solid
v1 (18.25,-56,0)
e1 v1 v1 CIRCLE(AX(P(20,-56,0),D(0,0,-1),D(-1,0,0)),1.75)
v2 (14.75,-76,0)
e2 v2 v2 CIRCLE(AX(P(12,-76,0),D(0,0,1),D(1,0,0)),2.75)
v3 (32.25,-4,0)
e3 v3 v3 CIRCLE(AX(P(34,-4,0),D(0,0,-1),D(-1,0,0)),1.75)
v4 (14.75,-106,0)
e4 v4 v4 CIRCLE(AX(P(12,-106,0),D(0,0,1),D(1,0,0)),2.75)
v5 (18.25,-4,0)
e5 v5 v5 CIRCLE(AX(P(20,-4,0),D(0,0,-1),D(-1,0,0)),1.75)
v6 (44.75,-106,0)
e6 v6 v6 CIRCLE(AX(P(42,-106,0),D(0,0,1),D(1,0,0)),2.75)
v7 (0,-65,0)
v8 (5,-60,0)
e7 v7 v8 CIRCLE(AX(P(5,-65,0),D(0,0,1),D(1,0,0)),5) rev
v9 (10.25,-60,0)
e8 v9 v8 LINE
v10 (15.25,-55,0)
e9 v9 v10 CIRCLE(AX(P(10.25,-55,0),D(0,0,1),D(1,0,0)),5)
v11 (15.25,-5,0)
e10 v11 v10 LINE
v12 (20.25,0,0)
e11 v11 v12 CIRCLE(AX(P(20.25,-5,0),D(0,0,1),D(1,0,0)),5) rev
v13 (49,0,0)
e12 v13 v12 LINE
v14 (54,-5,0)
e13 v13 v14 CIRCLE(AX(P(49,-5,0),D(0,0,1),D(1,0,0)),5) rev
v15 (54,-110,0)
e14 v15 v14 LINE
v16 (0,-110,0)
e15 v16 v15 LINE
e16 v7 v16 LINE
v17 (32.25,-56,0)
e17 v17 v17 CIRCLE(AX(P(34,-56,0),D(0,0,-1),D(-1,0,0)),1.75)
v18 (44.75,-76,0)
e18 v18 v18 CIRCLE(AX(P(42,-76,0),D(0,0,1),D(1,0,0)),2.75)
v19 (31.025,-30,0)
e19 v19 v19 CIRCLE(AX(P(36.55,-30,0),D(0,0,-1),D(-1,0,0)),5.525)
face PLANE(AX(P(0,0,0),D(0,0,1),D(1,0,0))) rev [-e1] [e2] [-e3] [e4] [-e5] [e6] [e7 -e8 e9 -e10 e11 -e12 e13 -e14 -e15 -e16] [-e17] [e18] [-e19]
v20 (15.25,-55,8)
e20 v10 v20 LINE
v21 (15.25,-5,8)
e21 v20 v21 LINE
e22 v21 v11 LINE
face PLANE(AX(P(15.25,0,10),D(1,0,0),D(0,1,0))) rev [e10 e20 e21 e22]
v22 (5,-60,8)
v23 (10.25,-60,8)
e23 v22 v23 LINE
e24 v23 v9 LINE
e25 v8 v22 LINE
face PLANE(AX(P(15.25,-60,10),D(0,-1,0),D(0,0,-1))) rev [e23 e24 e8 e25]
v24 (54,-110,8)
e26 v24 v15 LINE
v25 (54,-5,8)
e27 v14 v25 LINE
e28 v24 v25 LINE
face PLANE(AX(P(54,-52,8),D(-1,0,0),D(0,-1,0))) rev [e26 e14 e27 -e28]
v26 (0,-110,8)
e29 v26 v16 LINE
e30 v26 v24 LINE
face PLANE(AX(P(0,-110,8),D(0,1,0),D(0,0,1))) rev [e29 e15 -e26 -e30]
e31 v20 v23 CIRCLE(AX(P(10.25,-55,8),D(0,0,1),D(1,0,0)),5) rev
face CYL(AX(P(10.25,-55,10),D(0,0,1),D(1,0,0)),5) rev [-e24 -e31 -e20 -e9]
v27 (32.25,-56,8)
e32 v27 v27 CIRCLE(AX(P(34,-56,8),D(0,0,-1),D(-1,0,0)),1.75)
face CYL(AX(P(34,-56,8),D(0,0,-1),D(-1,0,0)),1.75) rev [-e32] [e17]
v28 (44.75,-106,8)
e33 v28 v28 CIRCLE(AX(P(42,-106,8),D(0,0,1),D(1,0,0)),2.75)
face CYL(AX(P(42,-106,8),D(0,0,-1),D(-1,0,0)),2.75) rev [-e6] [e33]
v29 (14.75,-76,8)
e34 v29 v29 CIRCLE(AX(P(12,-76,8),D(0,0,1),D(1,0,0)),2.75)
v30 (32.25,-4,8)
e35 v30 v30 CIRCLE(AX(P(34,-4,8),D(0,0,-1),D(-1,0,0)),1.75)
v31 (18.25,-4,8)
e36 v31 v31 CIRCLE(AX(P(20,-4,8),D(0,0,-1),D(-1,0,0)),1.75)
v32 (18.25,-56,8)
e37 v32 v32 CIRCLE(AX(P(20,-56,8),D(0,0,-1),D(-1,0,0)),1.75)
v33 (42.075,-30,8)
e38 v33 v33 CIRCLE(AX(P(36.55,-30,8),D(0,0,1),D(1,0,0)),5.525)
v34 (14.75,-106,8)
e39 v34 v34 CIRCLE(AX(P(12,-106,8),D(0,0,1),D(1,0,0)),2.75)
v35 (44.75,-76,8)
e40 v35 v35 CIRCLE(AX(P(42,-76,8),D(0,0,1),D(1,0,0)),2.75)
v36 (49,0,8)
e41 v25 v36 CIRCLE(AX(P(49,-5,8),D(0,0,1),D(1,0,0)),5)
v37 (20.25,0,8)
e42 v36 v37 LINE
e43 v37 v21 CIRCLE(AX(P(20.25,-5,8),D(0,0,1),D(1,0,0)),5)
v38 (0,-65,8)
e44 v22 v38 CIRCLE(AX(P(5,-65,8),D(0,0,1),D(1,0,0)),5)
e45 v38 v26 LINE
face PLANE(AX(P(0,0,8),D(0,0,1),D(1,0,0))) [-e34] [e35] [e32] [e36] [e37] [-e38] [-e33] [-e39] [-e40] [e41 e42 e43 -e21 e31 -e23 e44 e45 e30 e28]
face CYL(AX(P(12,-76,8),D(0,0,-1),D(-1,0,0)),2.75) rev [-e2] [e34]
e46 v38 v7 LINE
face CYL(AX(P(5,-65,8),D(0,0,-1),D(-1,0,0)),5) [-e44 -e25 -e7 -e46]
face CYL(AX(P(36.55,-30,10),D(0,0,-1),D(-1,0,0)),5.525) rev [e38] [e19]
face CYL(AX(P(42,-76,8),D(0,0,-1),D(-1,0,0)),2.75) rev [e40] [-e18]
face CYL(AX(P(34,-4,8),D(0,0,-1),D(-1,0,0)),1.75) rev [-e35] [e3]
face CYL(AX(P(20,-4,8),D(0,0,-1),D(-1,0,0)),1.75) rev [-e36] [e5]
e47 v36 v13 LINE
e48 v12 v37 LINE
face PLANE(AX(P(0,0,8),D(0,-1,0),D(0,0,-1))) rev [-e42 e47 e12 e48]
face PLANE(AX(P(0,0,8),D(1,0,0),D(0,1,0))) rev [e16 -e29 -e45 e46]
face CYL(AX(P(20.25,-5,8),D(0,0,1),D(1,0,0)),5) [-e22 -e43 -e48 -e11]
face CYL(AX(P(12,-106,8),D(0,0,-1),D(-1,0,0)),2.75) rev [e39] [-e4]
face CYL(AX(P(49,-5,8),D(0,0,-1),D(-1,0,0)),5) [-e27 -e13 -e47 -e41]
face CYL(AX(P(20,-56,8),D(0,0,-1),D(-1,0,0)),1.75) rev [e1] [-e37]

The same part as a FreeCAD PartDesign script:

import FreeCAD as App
import Part
import Sketcher
Q = App.Units.Quantity


def edges_at(feature, points):
    """Names of the edges that pass closest to the given points."""
    edges = feature.Shape.Edges
    near = lambda p: min(range(len(edges)), key=lambda i: edges[i].distToShape(Part.Vertex(*p))[0])
    return sorted({f"Edge{near(p) + 1}" for p in points})


def add_polygon(sketch, points):
    """Adds a closed chain of lines whose ends are joined by coincident constraints."""
    first, n = sketch.GeometryCount, len(points)
    for a, b in zip(points, points[1:] + points[:1]):
        sketch.addGeometry(Part.LineSegment(App.Vector(*a, 0), App.Vector(*b, 0)), False)
    for i in range(n):
        sketch.addConstraint(Sketcher.Constraint("Coincident", first + i, 2, first + (i + 1) % n, 1))

doc = App.newDocument("Part")
body = doc.addObject("PartDesign::Body", "Body")

# Sketch on XY plane
sketch1 = doc.addObject("Sketcher::SketchObject", "Sketch")
body.addObject(sketch1)
sketch1.AttachmentSupport = (doc.XY_Plane, [""])
sketch1.MapMode = "FlatFace"
add_polygon(sketch1, [(54, 0), (0, 0), (0, -110), (54, -110)])  # lines 0-3
sketch1.addGeometry(Part.Circle(App.Vector(42, -106, 0), App.Vector(0, 0, 1), 2.8), False)  # 4
sketch1.addGeometry(Part.Circle(App.Vector(12, -106, 0), App.Vector(0, 0, 1), 2.8), False)  # 5
sketch1.addGeometry(Part.Circle(App.Vector(42, -76, 0), App.Vector(0, 0, 1), 2.8), False)  # 6
sketch1.addGeometry(Part.Circle(App.Vector(12, -76, 0), App.Vector(0, 0, 1), 2.8), False)  # 7
sketch1.addConstraint([
    Sketcher.Constraint("Horizontal", 0),
    Sketcher.Constraint("Vertical", 1),
    Sketcher.Constraint("Horizontal", 2),
    Sketcher.Constraint("Vertical", 3),
    Sketcher.Constraint("Coincident", 0, 2, -1, 1),
    Sketcher.Constraint("Equal", 4, 5),
    Sketcher.Constraint("Equal", 5, 6),
    Sketcher.Constraint("Equal", 6, 7),
    Sketcher.Constraint("Horizontal", 4, 3, 5, 3),
    Sketcher.Constraint("Horizontal", 6, 3, 7, 3),
    Sketcher.Constraint("Vertical", 4, 3, 6, 3),
    Sketcher.Constraint("Vertical", 5, 3, 7, 3),
    Sketcher.Constraint("Diameter", 4, Q("5.5 mm")),
    Sketcher.Constraint("DistanceX", 0, 2, 0, 1, Q("54 mm")),
    Sketcher.Constraint("DistanceY", 1, 2, 1, 1, Q("110 mm")),
    Sketcher.Constraint("DistanceX", -1, 1, 4, 3, Q("42 mm")),
    Sketcher.Constraint("DistanceY", 4, 3, -1, 1, Q("106 mm")),
    Sketcher.Constraint("DistanceX", -1, 1, 5, 3, Q("12 mm")),
    Sketcher.Constraint("DistanceY", 6, 3, -1, 1, Q("76 mm")),
])
pad1 = doc.addObject("PartDesign::Pad", "Pad")
body.addObject(pad1)
pad1.Profile = sketch1
pad1.Length = 8

# Sketch on XY plane
sketch2 = doc.addObject("Sketcher::SketchObject", "Sketch001")
body.addObject(sketch2)
sketch2.AttachmentSupport = (doc.XY_Plane, [""])
sketch2.MapMode = "FlatFace"
add_polygon(sketch2, [(15, 0), (15, -60), (0, -60), (0, 0)])  # lines 0-3
sketch2.addConstraint([
    Sketcher.Constraint("Vertical", 0),
    Sketcher.Constraint("Horizontal", 1),
    Sketcher.Constraint("Vertical", 2),
    Sketcher.Constraint("Horizontal", 3),
    Sketcher.Constraint("Coincident", 2, 2, -1, 1),
    Sketcher.Constraint("DistanceY", 0, 2, 0, 1, Q("60 mm")),
    Sketcher.Constraint("DistanceX", 1, 2, 1, 1, Q("15.25 mm")),
])
pocket1 = doc.addObject("PartDesign::Pocket", "Pocket")
body.addObject(pocket1)
pocket1.Profile = sketch2
pocket1.Length = 10
pocket1.Reversed = True
doc.recompute()

fillet = doc.addObject("PartDesign::Fillet", "Fillet")
body.addObject(fillet)
fillet.Base = (pocket1, edges_at(pocket1, [
    (15.25, 0, 4),
    (0, -60, 4),
    (15.25, -60, 4),
    (54, 0, 4),
]))
fillet.Radius = 5

# Sketch on XY plane
sketch3 = doc.addObject("Sketcher::SketchObject", "Sketch002")
body.addObject(sketch3)
sketch3.AttachmentSupport = (doc.XY_Plane, [""])
sketch3.MapMode = "FlatFace"
sketch3.addGeometry([
    Part.Circle(App.Vector(20, -4, 0), App.Vector(0, 0, 1), 1.8),
    Part.Circle(App.Vector(34, -4, 0), App.Vector(0, 0, 1), 1.8),
    Part.Circle(App.Vector(34, -56, 0), App.Vector(0, 0, 1), 1.8),
    Part.Circle(App.Vector(20, -56, 0), App.Vector(0, 0, 1), 1.8),
], False)
sketch3.addConstraint([
    Sketcher.Constraint("Equal", 0, 1),
    Sketcher.Constraint("Equal", 1, 2),
    Sketcher.Constraint("Equal", 2, 3),
    Sketcher.Constraint("Horizontal", 0, 3, 1, 3),
    Sketcher.Constraint("Horizontal", 2, 3, 3, 3),
    Sketcher.Constraint("Vertical", 1, 3, 2, 3),
    Sketcher.Constraint("Vertical", 0, 3, 3, 3),
    Sketcher.Constraint("Diameter", 0, Q("3.5 mm")),
    Sketcher.Constraint("DistanceX", -1, 1, 0, 3, Q("20 mm")),
    Sketcher.Constraint("DistanceY", 0, 3, -1, 1, Q("4 mm")),
    Sketcher.Constraint("DistanceX", -1, 1, 1, 3, Q("34 mm")),
    Sketcher.Constraint("DistanceY", 2, 3, -1, 1, Q("56 mm")),
])
pocket2 = doc.addObject("PartDesign::Pocket", "Pocket001")
body.addObject(pocket2)
pocket2.Profile = sketch3
pocket2.Type = "ThroughAll"
pocket2.Reversed = True

# Sketch on XY plane
sketch4 = doc.addObject("Sketcher::SketchObject", "Sketch003")
body.addObject(sketch4)
sketch4.AttachmentSupport = (doc.XY_Plane, [""])
sketch4.MapMode = "FlatFace"
sketch4.addGeometry(Part.Circle(App.Vector(37, -30, 0), App.Vector(0, 0, 1), 6), False)
sketch4.addConstraint([
    Sketcher.Constraint("Diameter", 0, Q("11.05 mm")),
    Sketcher.Constraint("DistanceY", 0, 3, -1, 1, Q("30 mm")),
    Sketcher.Constraint("DistanceX", -1, 1, 0, 3, Q("36.55 mm")),
])
pocket3 = doc.addObject("PartDesign::Pocket", "Pocket002")
body.addObject(pocket3)
pocket3.Profile = sketch4
pocket3.Length = 10
pocket3.Reversed = True

doc.recompute()
